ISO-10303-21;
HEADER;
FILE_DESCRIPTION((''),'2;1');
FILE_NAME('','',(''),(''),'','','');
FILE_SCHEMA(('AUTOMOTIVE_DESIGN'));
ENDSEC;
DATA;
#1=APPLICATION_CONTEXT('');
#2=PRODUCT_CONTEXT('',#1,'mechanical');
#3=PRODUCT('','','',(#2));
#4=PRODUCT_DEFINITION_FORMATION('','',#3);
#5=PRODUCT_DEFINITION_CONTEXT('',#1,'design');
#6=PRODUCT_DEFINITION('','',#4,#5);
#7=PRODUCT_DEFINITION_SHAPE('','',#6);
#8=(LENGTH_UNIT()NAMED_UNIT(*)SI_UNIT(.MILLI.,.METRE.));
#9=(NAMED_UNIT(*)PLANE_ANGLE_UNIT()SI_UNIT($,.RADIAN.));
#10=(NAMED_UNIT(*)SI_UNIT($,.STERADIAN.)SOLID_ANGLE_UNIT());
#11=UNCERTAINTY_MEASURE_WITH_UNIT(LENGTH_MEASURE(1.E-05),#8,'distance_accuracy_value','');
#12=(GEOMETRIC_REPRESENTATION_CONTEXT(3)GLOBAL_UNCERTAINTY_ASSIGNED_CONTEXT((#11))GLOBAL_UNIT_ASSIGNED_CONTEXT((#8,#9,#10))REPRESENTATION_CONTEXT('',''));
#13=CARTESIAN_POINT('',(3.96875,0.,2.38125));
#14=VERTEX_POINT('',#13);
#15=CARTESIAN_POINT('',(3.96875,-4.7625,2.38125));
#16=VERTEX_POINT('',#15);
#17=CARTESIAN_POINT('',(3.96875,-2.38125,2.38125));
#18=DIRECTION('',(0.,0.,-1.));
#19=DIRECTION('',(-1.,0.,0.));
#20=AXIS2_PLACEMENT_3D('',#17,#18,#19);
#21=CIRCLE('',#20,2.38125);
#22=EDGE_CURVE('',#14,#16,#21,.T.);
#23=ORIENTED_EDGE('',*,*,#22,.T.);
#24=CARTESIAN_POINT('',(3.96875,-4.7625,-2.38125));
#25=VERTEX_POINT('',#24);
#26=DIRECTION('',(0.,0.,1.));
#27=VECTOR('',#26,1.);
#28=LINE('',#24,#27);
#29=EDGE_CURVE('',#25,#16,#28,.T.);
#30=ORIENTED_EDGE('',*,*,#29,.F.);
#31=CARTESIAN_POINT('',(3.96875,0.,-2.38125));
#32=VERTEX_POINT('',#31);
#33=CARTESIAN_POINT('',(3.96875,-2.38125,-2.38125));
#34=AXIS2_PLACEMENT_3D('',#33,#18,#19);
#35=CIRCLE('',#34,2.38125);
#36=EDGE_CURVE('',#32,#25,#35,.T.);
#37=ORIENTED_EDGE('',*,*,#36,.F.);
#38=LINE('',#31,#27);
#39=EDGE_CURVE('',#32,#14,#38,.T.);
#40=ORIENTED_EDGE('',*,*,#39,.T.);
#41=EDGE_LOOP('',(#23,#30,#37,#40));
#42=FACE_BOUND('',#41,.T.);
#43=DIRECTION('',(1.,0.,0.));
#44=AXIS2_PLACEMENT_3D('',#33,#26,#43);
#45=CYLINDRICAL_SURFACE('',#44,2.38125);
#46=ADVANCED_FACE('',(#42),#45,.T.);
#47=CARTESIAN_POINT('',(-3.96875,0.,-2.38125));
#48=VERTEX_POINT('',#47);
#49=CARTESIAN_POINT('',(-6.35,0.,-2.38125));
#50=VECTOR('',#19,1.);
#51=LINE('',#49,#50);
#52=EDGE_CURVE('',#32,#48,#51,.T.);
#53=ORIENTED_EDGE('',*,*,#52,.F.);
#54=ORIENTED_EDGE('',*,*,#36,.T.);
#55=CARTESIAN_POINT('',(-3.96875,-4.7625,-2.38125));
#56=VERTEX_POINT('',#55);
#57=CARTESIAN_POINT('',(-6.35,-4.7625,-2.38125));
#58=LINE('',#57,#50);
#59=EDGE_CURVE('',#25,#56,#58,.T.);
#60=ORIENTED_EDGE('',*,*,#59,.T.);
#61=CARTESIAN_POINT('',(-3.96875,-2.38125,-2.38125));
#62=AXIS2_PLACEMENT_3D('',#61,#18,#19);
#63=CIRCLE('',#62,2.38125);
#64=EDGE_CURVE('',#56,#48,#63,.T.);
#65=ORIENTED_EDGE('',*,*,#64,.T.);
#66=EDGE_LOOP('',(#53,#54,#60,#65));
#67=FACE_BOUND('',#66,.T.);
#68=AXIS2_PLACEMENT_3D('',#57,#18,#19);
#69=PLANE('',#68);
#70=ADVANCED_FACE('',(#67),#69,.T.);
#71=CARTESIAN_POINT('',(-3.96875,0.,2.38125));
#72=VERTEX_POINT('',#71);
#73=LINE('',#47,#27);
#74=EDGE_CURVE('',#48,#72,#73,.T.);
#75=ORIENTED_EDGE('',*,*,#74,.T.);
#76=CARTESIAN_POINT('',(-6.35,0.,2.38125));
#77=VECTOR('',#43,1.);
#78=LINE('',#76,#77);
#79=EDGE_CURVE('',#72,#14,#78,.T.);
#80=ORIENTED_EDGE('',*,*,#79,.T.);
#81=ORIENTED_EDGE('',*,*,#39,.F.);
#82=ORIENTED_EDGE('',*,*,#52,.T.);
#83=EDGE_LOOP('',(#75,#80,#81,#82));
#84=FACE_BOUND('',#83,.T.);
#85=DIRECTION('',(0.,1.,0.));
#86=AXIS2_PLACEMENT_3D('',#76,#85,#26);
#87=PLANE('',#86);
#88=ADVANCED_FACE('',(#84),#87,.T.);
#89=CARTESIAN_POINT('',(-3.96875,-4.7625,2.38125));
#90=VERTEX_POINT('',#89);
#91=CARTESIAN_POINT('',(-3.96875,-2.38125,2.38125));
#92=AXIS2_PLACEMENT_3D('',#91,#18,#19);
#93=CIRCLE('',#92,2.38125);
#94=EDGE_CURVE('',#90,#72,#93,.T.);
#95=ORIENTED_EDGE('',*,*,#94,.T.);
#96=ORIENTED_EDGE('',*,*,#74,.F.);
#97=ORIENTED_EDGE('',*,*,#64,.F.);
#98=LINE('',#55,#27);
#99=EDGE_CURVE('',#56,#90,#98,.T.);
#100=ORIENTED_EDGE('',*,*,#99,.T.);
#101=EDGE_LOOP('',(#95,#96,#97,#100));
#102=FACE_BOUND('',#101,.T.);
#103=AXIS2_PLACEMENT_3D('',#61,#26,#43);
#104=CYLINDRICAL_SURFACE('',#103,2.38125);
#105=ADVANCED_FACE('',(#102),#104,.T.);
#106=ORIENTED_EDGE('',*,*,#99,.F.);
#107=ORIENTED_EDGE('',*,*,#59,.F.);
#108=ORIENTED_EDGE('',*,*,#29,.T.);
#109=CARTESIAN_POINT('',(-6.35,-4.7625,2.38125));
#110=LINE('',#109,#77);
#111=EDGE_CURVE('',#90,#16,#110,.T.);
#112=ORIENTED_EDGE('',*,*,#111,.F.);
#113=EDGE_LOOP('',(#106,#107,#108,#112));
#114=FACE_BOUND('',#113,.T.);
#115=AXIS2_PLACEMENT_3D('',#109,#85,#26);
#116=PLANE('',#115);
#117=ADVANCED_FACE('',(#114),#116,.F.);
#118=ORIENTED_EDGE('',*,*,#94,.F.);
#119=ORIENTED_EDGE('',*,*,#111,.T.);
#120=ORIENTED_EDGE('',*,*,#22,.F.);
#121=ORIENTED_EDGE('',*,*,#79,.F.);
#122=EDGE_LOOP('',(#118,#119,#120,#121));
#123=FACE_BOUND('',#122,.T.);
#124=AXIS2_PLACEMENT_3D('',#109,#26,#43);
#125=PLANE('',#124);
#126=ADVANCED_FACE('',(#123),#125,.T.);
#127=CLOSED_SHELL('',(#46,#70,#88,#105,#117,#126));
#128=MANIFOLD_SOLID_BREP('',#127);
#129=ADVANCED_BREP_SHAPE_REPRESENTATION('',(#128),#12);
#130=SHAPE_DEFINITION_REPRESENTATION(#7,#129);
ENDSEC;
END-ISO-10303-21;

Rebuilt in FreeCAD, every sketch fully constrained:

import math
import FreeCAD as App
import Part
import Sketcher
Q = App.Units.Quantity

doc = App.newDocument("Part")
body = doc.addObject("PartDesign::Body", "Body")

# Sketch on XZ plane
sketch1 = body.newObject("Sketcher::SketchObject", "Sketch")
sketch1.AttachmentSupport = (doc.getObject("XZ_Plane"), [""])
sketch1.MapMode = "FlatFace"
sketch1.addGeometry(Part.LineSegment(App.Vector(-6.3, -2.4, 0), App.Vector(-6.3, 2.4, 0)), False)
sketch1.addGeometry(Part.LineSegment(App.Vector(-6.3, 2.4, 0), App.Vector(6.3, 2.4, 0)), False)
sketch1.addGeometry(Part.LineSegment(App.Vector(6.3, 2.4, 0), App.Vector(6.3, -2.4, 0)), False)
sketch1.addGeometry(Part.LineSegment(App.Vector(6.3, -2.4, 0), App.Vector(-6.3, -2.4, 0)), False)
sketch1.addConstraint(Sketcher.Constraint("Coincident", 0, 2, 1, 1))
sketch1.addConstraint(Sketcher.Constraint("Coincident", 1, 2, 2, 1))
sketch1.addConstraint(Sketcher.Constraint("Coincident", 2, 2, 3, 1))
sketch1.addConstraint(Sketcher.Constraint("Coincident", 3, 2, 0, 1))
sketch1.addConstraint(Sketcher.Constraint("Vertical", 0))
sketch1.addConstraint(Sketcher.Constraint("Horizontal", 1))
sketch1.addConstraint(Sketcher.Constraint("Vertical", 2))
sketch1.addConstraint(Sketcher.Constraint("Horizontal", 3))
sketch1.addConstraint(Sketcher.Constraint("Symmetric", 0, 2, 2, 2, -1, 1))
sketch1.addConstraint(Sketcher.Constraint("DistanceX", 1, 1, 1, 2, Q("0.5 in")))
sketch1.addConstraint(Sketcher.Constraint("DistanceY", 0, 1, 0, 2, Q("0.1875 in")))
pad1 = body.newObject("PartDesign::Pad", "Pad")
pad1.Profile = sketch1
pad1.Length = Q("0.1875 in")

# Sketch on XY plane
sketch2 = body.newObject("Sketcher::SketchObject", "Sketch001")
sketch2.AttachmentSupport = (doc.getObject("XY_Plane"), [""])
sketch2.MapMode = "FlatFace"
sketch2.AttachmentOffset = App.Placement(App.Vector(0, 0, 0.09375 * 25.4), App.Rotation())
sketch2.addGeometry(Part.LineSegment(App.Vector(8.8, 2.4, 0), App.Vector(8.8, -7.2, 0)), False)
sketch2.addGeometry(Part.LineSegment(App.Vector(8.8, -7.2, 0), App.Vector(-8.8, -7.2, 0)), False)
sketch2.addGeometry(Part.LineSegment(App.Vector(-8.8, -7.2, 0), App.Vector(-8.8, 2.4, 0)), False)
sketch2.addGeometry(Part.LineSegment(App.Vector(-8.8, 2.4, 0), App.Vector(8.8, 2.4, 0)), False)
sketch2.addGeometry(Part.ArcOfCircle(Part.Circle(App.Vector(4, -2.4, 0), App.Vector(0, 0, 1), 2.4), math.radians(-90), math.radians(90)), False)
sketch2.addGeometry(Part.LineSegment(App.Vector(4, 0, 0), App.Vector(-4, 0, 0)), False)
sketch2.addGeometry(Part.ArcOfCircle(Part.Circle(App.Vector(-4, -2.4, 0), App.Vector(0, 0, 1), 2.4), math.radians(90), math.radians(270)), False)
sketch2.addGeometry(Part.LineSegment(App.Vector(-4, -4.8, 0), App.Vector(4, -4.8, 0)), False)
sketch2.addConstraint(Sketcher.Constraint("Coincident", 0, 2, 1, 1))
sketch2.addConstraint(Sketcher.Constraint("Coincident", 1, 2, 2, 1))
sketch2.addConstraint(Sketcher.Constraint("Coincident", 2, 2, 3, 1))
sketch2.addConstraint(Sketcher.Constraint("Coincident", 3, 2, 0, 1))
sketch2.addConstraint(Sketcher.Constraint("Tangent", 4, 2, 5, 1))
sketch2.addConstraint(Sketcher.Constraint("Tangent", 5, 2, 6, 1))
sketch2.addConstraint(Sketcher.Constraint("Tangent", 6, 2, 7, 1))
sketch2.addConstraint(Sketcher.Constraint("Tangent", 7, 2, 4, 1))
sketch2.addConstraint(Sketcher.Constraint("Vertical", 0))
sketch2.addConstraint(Sketcher.Constraint("Horizontal", 1))
sketch2.addConstraint(Sketcher.Constraint("Vertical", 2))
sketch2.addConstraint(Sketcher.Constraint("Horizontal", 3))
sketch2.addConstraint(Sketcher.Constraint("Horizontal", 5))
sketch2.addConstraint(Sketcher.Constraint("Horizontal", 7))
sketch2.addConstraint(Sketcher.Constraint("Symmetric", 4, 2, 5, 2, -1, 1))
sketch2.addConstraint(Sketcher.Constraint("Radius", 4, Q("0.09375 in")))
sketch2.addConstraint(Sketcher.Constraint("DistanceX", 5, 2, 5, 1, Q("0.3125 in")))
sketch2.addConstraint(Sketcher.Constraint("DistanceX", 1, 2, 1, 1, Q("17.576 mm")))
sketch2.addConstraint(Sketcher.Constraint("DistanceY", 0, 2, 0, 1, Q("9.638 mm")))
sketch2.addConstraint(Sketcher.Constraint("DistanceX", -1, 1, 0, 2, Q("8.788 mm")))
sketch2.addConstraint(Sketcher.Constraint("DistanceY", 0, 2, -1, 1, Q("7.2 mm")))
pocket1 = body.newObject("PartDesign::Pocket", "Pocket")
pocket1.Profile = sketch2
pocket1.Type = "ThroughAll"

doc.recompute()
